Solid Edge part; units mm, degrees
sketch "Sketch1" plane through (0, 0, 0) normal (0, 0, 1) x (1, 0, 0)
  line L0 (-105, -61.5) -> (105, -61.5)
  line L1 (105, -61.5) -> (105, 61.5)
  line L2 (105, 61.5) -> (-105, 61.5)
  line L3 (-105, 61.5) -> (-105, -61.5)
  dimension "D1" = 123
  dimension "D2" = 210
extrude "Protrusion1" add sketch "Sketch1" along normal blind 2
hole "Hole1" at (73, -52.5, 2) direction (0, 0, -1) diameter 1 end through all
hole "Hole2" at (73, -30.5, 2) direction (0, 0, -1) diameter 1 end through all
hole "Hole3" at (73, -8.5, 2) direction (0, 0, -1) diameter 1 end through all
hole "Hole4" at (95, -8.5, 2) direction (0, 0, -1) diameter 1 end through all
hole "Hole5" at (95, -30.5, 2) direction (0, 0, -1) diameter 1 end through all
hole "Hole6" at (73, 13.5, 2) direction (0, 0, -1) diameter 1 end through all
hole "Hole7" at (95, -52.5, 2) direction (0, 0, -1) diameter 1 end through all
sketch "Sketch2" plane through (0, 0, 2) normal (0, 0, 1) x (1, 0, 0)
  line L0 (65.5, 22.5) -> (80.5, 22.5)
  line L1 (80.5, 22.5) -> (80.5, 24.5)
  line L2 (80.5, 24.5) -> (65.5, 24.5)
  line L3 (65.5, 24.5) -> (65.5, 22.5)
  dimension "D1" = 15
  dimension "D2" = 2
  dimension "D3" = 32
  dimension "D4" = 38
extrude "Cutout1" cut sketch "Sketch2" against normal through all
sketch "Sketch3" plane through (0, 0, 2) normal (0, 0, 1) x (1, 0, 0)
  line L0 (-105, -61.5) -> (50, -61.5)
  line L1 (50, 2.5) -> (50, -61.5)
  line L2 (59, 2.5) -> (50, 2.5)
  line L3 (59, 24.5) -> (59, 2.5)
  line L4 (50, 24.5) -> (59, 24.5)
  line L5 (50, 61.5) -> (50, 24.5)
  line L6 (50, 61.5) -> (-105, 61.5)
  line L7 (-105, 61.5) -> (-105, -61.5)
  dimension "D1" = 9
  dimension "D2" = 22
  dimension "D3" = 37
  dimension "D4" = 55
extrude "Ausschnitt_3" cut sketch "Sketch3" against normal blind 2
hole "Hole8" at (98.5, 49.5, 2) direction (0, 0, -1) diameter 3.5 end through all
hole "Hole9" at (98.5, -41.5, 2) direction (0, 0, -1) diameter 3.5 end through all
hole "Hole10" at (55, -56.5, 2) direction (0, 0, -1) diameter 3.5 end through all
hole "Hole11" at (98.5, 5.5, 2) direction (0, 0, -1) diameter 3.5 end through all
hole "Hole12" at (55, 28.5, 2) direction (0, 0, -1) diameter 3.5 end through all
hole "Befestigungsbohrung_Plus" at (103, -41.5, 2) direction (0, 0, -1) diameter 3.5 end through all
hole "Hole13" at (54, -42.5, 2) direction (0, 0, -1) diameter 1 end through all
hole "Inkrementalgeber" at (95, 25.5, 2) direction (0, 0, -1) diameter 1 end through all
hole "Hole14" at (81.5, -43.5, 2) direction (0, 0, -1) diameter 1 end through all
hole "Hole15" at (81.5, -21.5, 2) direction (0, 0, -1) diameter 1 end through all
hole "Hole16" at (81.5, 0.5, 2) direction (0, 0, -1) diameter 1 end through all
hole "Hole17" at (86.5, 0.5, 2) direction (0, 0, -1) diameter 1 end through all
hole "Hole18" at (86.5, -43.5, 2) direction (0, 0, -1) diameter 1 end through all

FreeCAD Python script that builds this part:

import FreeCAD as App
import Part
import Sketcher
Q = App.Units.Quantity

doc = App.newDocument("Part")
body = doc.addObject("PartDesign::Body", "Body")

# Sketch on XY plane
sketch1 = doc.addObject("Sketcher::SketchObject", "Sketch")
body.addObject(sketch1)
sketch1.AttachmentSupport = (doc.XY_Plane, [""])
sketch1.MapMode = "FlatFace"
sketch1.addGeometry(Part.LineSegment(App.Vector(-105, 62, 0), App.Vector(-105, -62, 0)), False)
sketch1.addGeometry(Part.LineSegment(App.Vector(-105, -62, 0), App.Vector(105, -62, 0)), False)
sketch1.addGeometry(Part.LineSegment(App.Vector(105, -62, 0), App.Vector(105, 62, 0)), False)
sketch1.addGeometry(Part.LineSegment(App.Vector(105, 62, 0), App.Vector(-105, 62, 0)), False)
sketch1.addConstraint(Sketcher.Constraint("Coincident", 0, 2, 1, 1))
sketch1.addConstraint(Sketcher.Constraint("Coincident", 1, 2, 2, 1))
sketch1.addConstraint(Sketcher.Constraint("Coincident", 2, 2, 3, 1))
sketch1.addConstraint(Sketcher.Constraint("Coincident", 3, 2, 0, 1))
sketch1.addConstraint(Sketcher.Constraint("Vertical", 0))
sketch1.addConstraint(Sketcher.Constraint("Horizontal", 1))
sketch1.addConstraint(Sketcher.Constraint("Vertical", 2))
sketch1.addConstraint(Sketcher.Constraint("Horizontal", 3))
sketch1.addConstraint(Sketcher.Constraint("Symmetric", 0, 2, 2, 2, -1, 1))
sketch1.addConstraint(Sketcher.Constraint("DistanceX", 0, 2, -1, 1, Q("105 mm")))
sketch1.addConstraint(Sketcher.Constraint("DistanceY", 0, 2, 0, 1, Q("123 mm")))
pad1 = doc.addObject("PartDesign::Pad", "Pad")
body.addObject(pad1)
pad1.Profile = sketch1
pad1.Length = 2

# Sketch on XY plane
sketch2 = doc.addObject("Sketcher::SketchObject", "Sketch001")
body.addObject(sketch2)
sketch2.AttachmentSupport = (doc.XY_Plane, [""])
sketch2.MapMode = "FlatFace"
sketch2.AttachmentOffset = App.Placement(App.Vector(0, 0, 2), App.Rotation())
sketch2.addGeometry(Part.Circle(App.Vector(73, -52.5, 0), App.Vector(0, 0, 1), 0.5), False)
sketch2.addConstraint(Sketcher.Constraint("Diameter", 0, Q("1 mm")))
sketch2.addConstraint(Sketcher.Constraint("DistanceX", -1, 1, 0, 3, Q("73 mm")))
sketch2.addConstraint(Sketcher.Constraint("DistanceY", 0, 3, -1, 1, Q("52.5 mm")))
doc.recompute()
hole = doc.addObject("PartDesign::Hole", "Hole")
body.addObject(hole)
hole.Profile = sketch2
hole.ThreadType = "None"
hole.Diameter = 1
hole.DepthType = "ThroughAll"

# Sketch on XY plane
sketch3 = doc.addObject("Sketcher::SketchObject", "Sketch002")
body.addObject(sketch3)
sketch3.AttachmentSupport = (doc.XY_Plane, [""])
sketch3.MapMode = "FlatFace"
sketch3.AttachmentOffset = App.Placement(App.Vector(0, 0, 2), App.Rotation())
sketch3.addGeometry(Part.Circle(App.Vector(73, -30.5, 0), App.Vector(0, 0, 1), 0.5), False)
sketch3.addConstraint(Sketcher.Constraint("Diameter", 0, Q("1 mm")))
sketch3.addConstraint(Sketcher.Constraint("DistanceX", -1, 1, 0, 3, Q("73 mm")))
sketch3.addConstraint(Sketcher.Constraint("DistanceY", 0, 3, -1, 1, Q("30.5 mm")))
doc.recompute()
hole2 = doc.addObject("PartDesign::Hole", "Hole001")
body.addObject(hole2)
hole2.Profile = sketch3
hole2.ThreadType = "None"
hole2.Diameter = 1
hole2.DepthType = "ThroughAll"

# Sketch on XY plane
sketch4 = doc.addObject("Sketcher::SketchObject", "Sketch003")
body.addObject(sketch4)
sketch4.AttachmentSupport = (doc.XY_Plane, [""])
sketch4.MapMode = "FlatFace"
sketch4.AttachmentOffset = App.Placement(App.Vector(0, 0, 2), App.Rotation())
sketch4.addGeometry(Part.Circle(App.Vector(73, -8.5, 0), App.Vector(0, 0, 1), 0.5), False)
sketch4.addConstraint(Sketcher.Constraint("Diameter", 0, Q("1 mm")))
sketch4.addConstraint(Sketcher.Constraint("DistanceX", -1, 1, 0, 3, Q("73 mm")))
sketch4.addConstraint(Sketcher.Constraint("DistanceY", 0, 3, -1, 1, Q("8.5 mm")))
doc.recompute()
hole3 = doc.addObject("PartDesign::Hole", "Hole002")
body.addObject(hole3)
hole3.Profile = sketch4
hole3.ThreadType = "None"
hole3.Diameter = 1
hole3.DepthType = "ThroughAll"

# Sketch on XY plane
sketch5 = doc.addObject("Sketcher::SketchObject", "Sketch004")
body.addObject(sketch5)
sketch5.AttachmentSupport = (doc.XY_Plane, [""])
sketch5.MapMode = "FlatFace"
sketch5.AttachmentOffset = App.Placement(App.Vector(0, 0, 2), App.Rotation())
sketch5.addGeometry(Part.Circle(App.Vector(95, -8.5, 0), App.Vector(0, 0, 1), 0.5), False)
sketch5.addConstraint(Sketcher.Constraint("Diameter", 0, Q("1 mm")))
sketch5.addConstraint(Sketcher.Constraint("DistanceX", -1, 1, 0, 3, Q("95 mm")))
sketch5.addConstraint(Sketcher.Constraint("DistanceY", 0, 3, -1, 1, Q("8.5 mm")))
doc.recompute()
hole4 = doc.addObject("PartDesign::Hole", "Hole003")
body.addObject(hole4)
hole4.Profile = sketch5
hole4.ThreadType = "None"
hole4.Diameter = 1
hole4.DepthType = "ThroughAll"

# Sketch on XY plane
sketch6 = doc.addObject("Sketcher::SketchObject", "Sketch005")
body.addObject(sketch6)
sketch6.AttachmentSupport = (doc.XY_Plane, [""])
sketch6.MapMode = "FlatFace"
sketch6.AttachmentOffset = App.Placement(App.Vector(0, 0, 2), App.Rotation())
sketch6.addGeometry(Part.Circle(App.Vector(95, -30.5, 0), App.Vector(0, 0, 1), 0.5), False)
sketch6.addConstraint(Sketcher.Constraint("Diameter", 0, Q("1 mm")))
sketch6.addConstraint(Sketcher.Constraint("DistanceX", -1, 1, 0, 3, Q("95 mm")))
sketch6.addConstraint(Sketcher.Constraint("DistanceY", 0, 3, -1, 1, Q("30.5 mm")))
doc.recompute()
hole5 = doc.addObject("PartDesign::Hole", "Hole004")
body.addObject(hole5)
hole5.Profile = sketch6
hole5.ThreadType = "None"
hole5.Diameter = 1
hole5.DepthType = "ThroughAll"

# Sketch on XY plane
sketch7 = doc.addObject("Sketcher::SketchObject", "Sketch006")
body.addObject(sketch7)
sketch7.AttachmentSupport = (doc.XY_Plane, [""])
sketch7.MapMode = "FlatFace"
sketch7.AttachmentOffset = App.Placement(App.Vector(0, 0, 2), App.Rotation())
sketch7.addGeometry(Part.Circle(App.Vector(73, 13.5, 0), App.Vector(0, 0, 1), 0.5), False)
sketch7.addConstraint(Sketcher.Constraint("Diameter", 0, Q("1 mm")))
sketch7.addConstraint(Sketcher.Constraint("DistanceX", -1, 1, 0, 3, Q("73 mm")))
sketch7.addConstraint(Sketcher.Constraint("DistanceY", -1, 1, 0, 3, Q("13.5 mm")))
doc.recompute()
hole6 = doc.addObject("PartDesign::Hole", "Hole005")
body.addObject(hole6)
hole6.Profile = sketch7
hole6.ThreadType = "None"
hole6.Diameter = 1
hole6.DepthType = "ThroughAll"

# Sketch on XY plane
sketch8 = doc.addObject("Sketcher::SketchObject", "Sketch007")
body.addObject(sketch8)
sketch8.AttachmentSupport = (doc.XY_Plane, [""])
sketch8.MapMode = "FlatFace"
sketch8.AttachmentOffset = App.Placement(App.Vector(0, 0, 2), App.Rotation())
sketch8.addGeometry(Part.Circle(App.Vector(95, -52.5, 0), App.Vector(0, 0, 1), 0.5), False)
sketch8.addConstraint(Sketcher.Constraint("Diameter", 0, Q("1 mm")))
sketch8.addConstraint(Sketcher.Constraint("DistanceX", -1, 1, 0, 3, Q("95 mm")))
sketch8.addConstraint(Sketcher.Constraint("DistanceY", 0, 3, -1, 1, Q("52.5 mm")))
doc.recompute()
hole7 = doc.addObject("PartDesign::Hole", "Hole006")
body.addObject(hole7)
hole7.Profile = sketch8
hole7.ThreadType = "None"
hole7.Diameter = 1
hole7.DepthType = "ThroughAll"

# Sketch on XY plane
sketch9 = doc.addObject("Sketcher::SketchObject", "Sketch008")
body.addObject(sketch9)
sketch9.AttachmentSupport = (doc.XY_Plane, [""])
sketch9.MapMode = "FlatFace"
sketch9.AttachmentOffset = App.Placement(App.Vector(0, 0, 2), App.Rotation())
sketch9.addGeometry(Part.LineSegment(App.Vector(65.5, 24.5, 0), App.Vector(65.5, 22.5, 0)), False)
sketch9.addGeometry(Part.LineSegment(App.Vector(65.5, 22.5, 0), App.Vector(80.5, 22.5, 0)), False)
sketch9.addGeometry(Part.LineSegment(App.Vector(80.5, 22.5, 0), App.Vector(80.5, 24.5, 0)), False)
sketch9.addGeometry(Part.LineSegment(App.Vector(80.5, 24.5, 0), App.Vector(65.5, 24.5, 0)), False)
sketch9.addConstraint(Sketcher.Constraint("Coincident", 0, 2, 1, 1))
sketch9.addConstraint(Sketcher.Constraint("Coincident", 1, 2, 2, 1))
sketch9.addConstraint(Sketcher.Constraint("Coincident", 2, 2, 3, 1))
sketch9.addConstraint(Sketcher.Constraint("Coincident", 3, 2, 0, 1))
sketch9.addConstraint(Sketcher.Constraint("Vertical", 0))
sketch9.addConstraint(Sketcher.Constraint("Horizontal", 1))
sketch9.addConstraint(Sketcher.Constraint("Vertical", 2))
sketch9.addConstraint(Sketcher.Constraint("Horizontal", 3))
sketch9.addConstraint(Sketcher.Constraint("DistanceX", -1, 1, 0, 2, Q("65.5 mm")))
sketch9.addConstraint(Sketcher.Constraint("DistanceX", -1, 1, 1, 2, Q("80.5 mm")))
sketch9.addConstraint(Sketcher.Constraint("DistanceY", 0, 2, 0, 1, Q("2 mm")))
sketch9.addConstraint(Sketcher.Constraint("DistanceY", -1, 1, 0, 2, Q("22.5 mm")))
pocket1 = doc.addObject("PartDesign::Pocket", "Pocket")
body.addObject(pocket1)
pocket1.Profile = sketch9
pocket1.Type = "ThroughAll"

# Sketch on XY plane
sketch10 = doc.addObject("Sketcher::SketchObject", "Sketch009")
body.addObject(sketch10)
sketch10.AttachmentSupport = (doc.XY_Plane, [""])
sketch10.MapMode = "FlatFace"
sketch10.AttachmentOffset = App.Placement(App.Vector(0, 0, 2), App.Rotation())
sketch10.addGeometry(Part.LineSegment(App.Vector(-105, 62, 0), App.Vector(-105, -62, 0)), False)
sketch10.addGeometry(Part.LineSegment(App.Vector(-105, -62, 0), App.Vector(50, -62, 0)), False)
sketch10.addGeometry(Part.LineSegment(App.Vector(50, -62, 0), App.Vector(50, 2, 0)), False)
sketch10.addGeometry(Part.LineSegment(App.Vector(50, 2, 0), App.Vector(59, 2, 0)), False)
sketch10.addGeometry(Part.LineSegment(App.Vector(59, 2, 0), App.Vector(59, 24, 0)), False)
sketch10.addGeometry(Part.LineSegment(App.Vector(59, 24, 0), App.Vector(50, 24, 0)), False)
sketch10.addGeometry(Part.LineSegment(App.Vector(50, 24, 0), App.Vector(50, 62, 0)), False)
sketch10.addGeometry(Part.LineSegment(App.Vector(50, 62, 0), App.Vector(-105, 62, 0)), False)
sketch10.addConstraint(Sketcher.Constraint("Coincident", 0, 2, 1, 1))
sketch10.addConstraint(Sketcher.Constraint("Coincident", 1, 2, 2, 1))
sketch10.addConstraint(Sketcher.Constraint("Coincident", 2, 2, 3, 1))
sketch10.addConstraint(Sketcher.Constraint("Coincident", 3, 2, 4, 1))
sketch10.addConstraint(Sketcher.Constraint("Coincident", 4, 2, 5, 1))
sketch10.addConstraint(Sketcher.Constraint("Coincident", 5, 2, 6, 1))
sketch10.addConstraint(Sketcher.Constraint("Coincident", 6, 2, 7, 1))
sketch10.addConstraint(Sketcher.Constraint("Coincident", 7, 2, 0, 1))
sketch10.addConstraint(Sketcher.Constraint("Vertical", 0))
sketch10.addConstraint(Sketcher.Constraint("Horizontal", 1))
sketch10.addConstraint(Sketcher.Constraint("Vertical", 2))
sketch10.addConstraint(Sketcher.Constraint("Horizontal", 3))
sketch10.addConstraint(Sketcher.Constraint("Vertical", 4))
sketch10.addConstraint(Sketcher.Constraint("Horizontal", 5))
sketch10.addConstraint(Sketcher.Constraint("Vertical", 6))
sketch10.addConstraint(Sketcher.Constraint("Horizontal", 7))
sketch10.addConstraint(Sketcher.Constraint("Symmetric", 1, 2, 6, 2, -1))
sketch10.addConstraint(Sketcher.Constraint("DistanceX", -1, 1, 1, 2, Q("50 mm")))
sketch10.addConstraint(Sketcher.Constraint("DistanceX", -1, 1, 3, 2, Q("59 mm")))
sketch10.addConstraint(Sketcher.Constraint("DistanceY", 2, 2, 6, 2, Q("59 mm")))
sketch10.addConstraint(Sketcher.Constraint("DistanceX", 1, 1, 1, 2, Q("155 mm")))
sketch10.addConstraint(Sketcher.Constraint("DistanceY", 0, 2, 0, 1, Q("123 mm")))
sketch10.addConstraint(Sketcher.Constraint("DistanceY", 4, 1, 4, 2, Q("22 mm")))
pocket2 = doc.addObject("PartDesign::Pocket", "Pocket001")
body.addObject(pocket2)
pocket2.Profile = sketch10
pocket2.Length = 2

# Sketch on XY plane
sketch11 = doc.addObject("Sketcher::SketchObject", "Sketch010")
body.addObject(sketch11)
sketch11.AttachmentSupport = (doc.XY_Plane, [""])
sketch11.MapMode = "FlatFace"
sketch11.AttachmentOffset = App.Placement(App.Vector(0, 0, 2), App.Rotation())
sketch11.addGeometry(Part.Circle(App.Vector(98.5, 49.5, 0), App.Vector(0, 0, 1), 1.8), False)
sketch11.addConstraint(Sketcher.Constraint("Diameter", 0, Q("3.5 mm")))
sketch11.addConstraint(Sketcher.Constraint("DistanceX", -1, 1, 0, 3, Q("98.5 mm")))
sketch11.addConstraint(Sketcher.Constraint("DistanceY", -1, 1, 0, 3, Q("49.5 mm")))
doc.recompute()
hole8 = doc.addObject("PartDesign::Hole", "Hole007")
body.addObject(hole8)
hole8.Profile = sketch11
hole8.ThreadType = "None"
hole8.Diameter = 3.5
hole8.DepthType = "ThroughAll"

# Sketch on XY plane
sketch12 = doc.addObject("Sketcher::SketchObject", "Sketch011")
body.addObject(sketch12)
sketch12.AttachmentSupport = (doc.XY_Plane, [""])
sketch12.MapMode = "FlatFace"
sketch12.AttachmentOffset = App.Placement(App.Vector(0, 0, 2), App.Rotation())
sketch12.addGeometry(Part.Circle(App.Vector(98.5, -41.5, 0), App.Vector(0, 0, 1), 1.8), False)
sketch12.addConstraint(Sketcher.Constraint("Diameter", 0, Q("3.5 mm")))
sketch12.addConstraint(Sketcher.Constraint("DistanceX", -1, 1, 0, 3, Q("98.5 mm")))
sketch12.addConstraint(Sketcher.Constraint("DistanceY", 0, 3, -1, 1, Q("41.5 mm")))
doc.recompute()
hole9 = doc.addObject("PartDesign::Hole", "Hole008")
body.addObject(hole9)
hole9.Profile = sketch12
hole9.ThreadType = "None"
hole9.Diameter = 3.5
hole9.DepthType = "ThroughAll"

# Sketch on XY plane
sketch13 = doc.addObject("Sketcher::SketchObject", "Sketch012")
body.addObject(sketch13)
sketch13.AttachmentSupport = (doc.XY_Plane, [""])
sketch13.MapMode = "FlatFace"
sketch13.AttachmentOffset = App.Placement(App.Vector(0, 0, 2), App.Rotation())
sketch13.addGeometry(Part.Circle(App.Vector(55, -56.5, 0), App.Vector(0, 0, 1), 1.8), False)
sketch13.addConstraint(Sketcher.Constraint("Diameter", 0, Q("3.5 mm")))
sketch13.addConstraint(Sketcher.Constraint("DistanceX", -1, 1, 0, 3, Q("55 mm")))
sketch13.addConstraint(Sketcher.Constraint("DistanceY", 0, 3, -1, 1, Q("56.5 mm")))
doc.recompute()
hole10 = doc.addObject("PartDesign::Hole", "Hole009")
body.addObject(hole10)
hole10.Profile = sketch13
hole10.ThreadType = "None"
hole10.Diameter = 3.5
hole10.DepthType = "ThroughAll"

# Sketch on XY plane
sketch14 = doc.addObject("Sketcher::SketchObject", "Sketch013")
body.addObject(sketch14)
sketch14.AttachmentSupport = (doc.XY_Plane, [""])
sketch14.MapMode = "FlatFace"
sketch14.AttachmentOffset = App.Placement(App.Vector(0, 0, 2), App.Rotation())
sketch14.addGeometry(Part.Circle(App.Vector(98.5, 5.5, 0), App.Vector(0, 0, 1), 1.8), False)
sketch14.addConstraint(Sketcher.Constraint("Diameter", 0, Q("3.5 mm")))
sketch14.addConstraint(Sketcher.Constraint("DistanceX", -1, 1, 0, 3, Q("98.5 mm")))
sketch14.addConstraint(Sketcher.Constraint("DistanceY", -1, 1, 0, 3, Q("5.5 mm")))
doc.recompute()
hole11 = doc.addObject("PartDesign::Hole", "Hole010")
body.addObject(hole11)
hole11.Profile = sketch14
hole11.ThreadType = "None"
hole11.Diameter = 3.5
hole11.DepthType = "ThroughAll"

# Sketch on XY plane
sketch15 = doc.addObject("Sketcher::SketchObject", "Sketch014")
body.addObject(sketch15)
sketch15.AttachmentSupport = (doc.XY_Plane, [""])
sketch15.MapMode = "FlatFace"
sketch15.AttachmentOffset = App.Placement(App.Vector(0, 0, 2), App.Rotation())
sketch15.addGeometry(Part.Circle(App.Vector(55, 28.5, 0), App.Vector(0, 0, 1), 1.8), False)
sketch15.addConstraint(Sketcher.Constraint("Diameter", 0, Q("3.5 mm")))
sketch15.addConstraint(Sketcher.Constraint("DistanceX", -1, 1, 0, 3, Q("55 mm")))
sketch15.addConstraint(Sketcher.Constraint("DistanceY", -1, 1, 0, 3, Q("28.5 mm")))
doc.recompute()
hole12 = doc.addObject("PartDesign::Hole", "Hole011")
body.addObject(hole12)
hole12.Profile = sketch15
hole12.ThreadType = "None"
hole12.Diameter = 3.5
hole12.DepthType = "ThroughAll"

# Sketch on XY plane
sketch16 = doc.addObject("Sketcher::SketchObject", "Sketch015")
body.addObject(sketch16)
sketch16.AttachmentSupport = (doc.XY_Plane, [""])
sketch16.MapMode = "FlatFace"
sketch16.AttachmentOffset = App.Placement(App.Vector(0, 0, 2), App.Rotation())
sketch16.addGeometry(Part.Circle(App.Vector(103, -41.5, 0), App.Vector(0, 0, 1), 1.8), False)
sketch16.addConstraint(Sketcher.Constraint("Diameter", 0, Q("3.5 mm")))
sketch16.addConstraint(Sketcher.Constraint("DistanceX", -1, 1, 0, 3, Q("103 mm")))
sketch16.addConstraint(Sketcher.Constraint("DistanceY", 0, 3, -1, 1, Q("41.5 mm")))
doc.recompute()
hole13 = doc.addObject("PartDesign::Hole", "Hole012")
body.addObject(hole13)
hole13.Profile = sketch16
hole13.ThreadType = "None"
hole13.Diameter = 3.5
hole13.DepthType = "ThroughAll"

# Sketch on XY plane
sketch17 = doc.addObject("Sketcher::SketchObject", "Sketch016")
body.addObject(sketch17)
sketch17.AttachmentSupport = (doc.XY_Plane, [""])
sketch17.MapMode = "FlatFace"
sketch17.AttachmentOffset = App.Placement(App.Vector(0, 0, 2), App.Rotation())
sketch17.addGeometry(Part.Circle(App.Vector(54, -42.5, 0), App.Vector(0, 0, 1), 0.5), False)
sketch17.addConstraint(Sketcher.Constraint("Diameter", 0, Q("1 mm")))
sketch17.addConstraint(Sketcher.Constraint("DistanceX", -1, 1, 0, 3, Q("54 mm")))
sketch17.addConstraint(Sketcher.Constraint("DistanceY", 0, 3, -1, 1, Q("42.5 mm")))
doc.recompute()
hole14 = doc.addObject("PartDesign::Hole", "Hole013")
body.addObject(hole14)
hole14.Profile = sketch17
hole14.ThreadType = "None"
hole14.Diameter = 1
hole14.DepthType = "ThroughAll"

# Sketch on XY plane
sketch18 = doc.addObject("Sketcher::SketchObject", "Sketch017")
body.addObject(sketch18)
sketch18.AttachmentSupport = (doc.XY_Plane, [""])
sketch18.MapMode = "FlatFace"
sketch18.AttachmentOffset = App.Placement(App.Vector(0, 0, 2), App.Rotation())
sketch18.addGeometry(Part.Circle(App.Vector(95, 25.5, 0), App.Vector(0, 0, 1), 0.5), False)
sketch18.addConstraint(Sketcher.Constraint("Diameter", 0, Q("1 mm")))
sketch18.addConstraint(Sketcher.Constraint("DistanceX", -1, 1, 0, 3, Q("95 mm")))
sketch18.addConstraint(Sketcher.Constraint("DistanceY", -1, 1, 0, 3, Q("25.5 mm")))
doc.recompute()
hole15 = doc.addObject("PartDesign::Hole", "Hole014")
body.addObject(hole15)
hole15.Profile = sketch18
hole15.ThreadType = "None"
hole15.Diameter = 1
hole15.DepthType = "ThroughAll"

# Sketch on XY plane
sketch19 = doc.addObject("Sketcher::SketchObject", "Sketch018")
body.addObject(sketch19)
sketch19.AttachmentSupport = (doc.XY_Plane, [""])
sketch19.MapMode = "FlatFace"
sketch19.AttachmentOffset = App.Placement(App.Vector(0, 0, 2), App.Rotation())
sketch19.addGeometry(Part.Circle(App.Vector(81.5, -43.5, 0), App.Vector(0, 0, 1), 0.5), False)
sketch19.addConstraint(Sketcher.Constraint("Diameter", 0, Q("1 mm")))
sketch19.addConstraint(Sketcher.Constraint("DistanceX", -1, 1, 0, 3, Q("81.5 mm")))
sketch19.addConstraint(Sketcher.Constraint("DistanceY", 0, 3, -1, 1, Q("43.5 mm")))
doc.recompute()
hole16 = doc.addObject("PartDesign::Hole", "Hole015")
body.addObject(hole16)
hole16.Profile = sketch19
hole16.ThreadType = "None"
hole16.Diameter = 1
hole16.DepthType = "ThroughAll"

# Sketch on XY plane
sketch20 = doc.addObject("Sketcher::SketchObject", "Sketch019")
body.addObject(sketch20)
sketch20.AttachmentSupport = (doc.XY_Plane, [""])
sketch20.MapMode = "FlatFace"
sketch20.AttachmentOffset = App.Placement(App.Vector(0, 0, 2), App.Rotation())
sketch20.addGeometry(Part.Circle(App.Vector(81.5, -21.5, 0), App.Vector(0, 0, 1), 0.5), False)
sketch20.addConstraint(Sketcher.Constraint("Diameter", 0, Q("1 mm")))
sketch20.addConstraint(Sketcher.Constraint("DistanceX", -1, 1, 0, 3, Q("81.5 mm")))
sketch20.addConstraint(Sketcher.Constraint("DistanceY", 0, 3, -1, 1, Q("21.5 mm")))
doc.recompute()
hole17 = doc.addObject("PartDesign::Hole", "Hole016")
body.addObject(hole17)
hole17.Profile = sketch20
hole17.ThreadType = "None"
hole17.Diameter = 1
hole17.DepthType = "ThroughAll"

# Sketch on XY plane
sketch21 = doc.addObject("Sketcher::SketchObject", "Sketch020")
body.addObject(sketch21)
sketch21.AttachmentSupport = (doc.XY_Plane, [""])
sketch21.MapMode = "FlatFace"
sketch21.AttachmentOffset = App.Placement(App.Vector(0, 0, 2), App.Rotation())
sketch21.addGeometry(Part.Circle(App.Vector(81.5, 0.5, 0), App.Vector(0, 0, 1), 0.5), False)
sketch21.addConstraint(Sketcher.Constraint("Diameter", 0, Q("1 mm")))
sketch21.addConstraint(Sketcher.Constraint("DistanceX", -1, 1, 0, 3, Q("81.5 mm")))
sketch21.addConstraint(Sketcher.Constraint("DistanceY", -1, 1, 0, 3, Q("0.5 mm")))
doc.recompute()
hole18 = doc.addObject("PartDesign::Hole", "Hole017")
body.addObject(hole18)
hole18.Profile = sketch21
hole18.ThreadType = "None"
hole18.Diameter = 1
hole18.DepthType = "ThroughAll"

# Sketch on XY plane
sketch22 = doc.addObject("Sketcher::SketchObject", "Sketch021")
body.addObject(sketch22)
sketch22.AttachmentSupport = (doc.XY_Plane, [""])
sketch22.MapMode = "FlatFace"
sketch22.AttachmentOffset = App.Placement(App.Vector(0, 0, 2), App.Rotation())
sketch22.addGeometry(Part.Circle(App.Vector(86.5, 0.5, 0), App.Vector(0, 0, 1), 0.5), False)
sketch22.addConstraint(Sketcher.Constraint("Diameter", 0, Q("1 mm")))
sketch22.addConstraint(Sketcher.Constraint("DistanceX", -1, 1, 0, 3, Q("86.5 mm")))
sketch22.addConstraint(Sketcher.Constraint("DistanceY", -1, 1, 0, 3, Q("0.5 mm")))
doc.recompute()
hole19 = doc.addObject("PartDesign::Hole", "Hole018")
body.addObject(hole19)
hole19.Profile = sketch22
hole19.ThreadType = "None"
hole19.Diameter = 1
hole19.DepthType = "ThroughAll"

# Sketch on XY plane
sketch23 = doc.addObject("Sketcher::SketchObject", "Sketch022")
body.addObject(sketch23)
sketch23.AttachmentSupport = (doc.XY_Plane, [""])
sketch23.MapMode = "FlatFace"
sketch23.AttachmentOffset = App.Placement(App.Vector(0, 0, 2), App.Rotation())
sketch23.addGeometry(Part.Circle(App.Vector(86.5, -43.5, 0), App.Vector(0, 0, 1), 0.5), False)
sketch23.addConstraint(Sketcher.Constraint("Diameter", 0, Q("1 mm")))
sketch23.addConstraint(Sketcher.Constraint("DistanceX", -1, 1, 0, 3, Q("86.5 mm")))
sketch23.addConstraint(Sketcher.Constraint("DistanceY", 0, 3, -1, 1, Q("43.5 mm")))
doc.recompute()
hole20 = doc.addObject("PartDesign::Hole", "Hole019")
body.addObject(hole20)
hole20.Profile = sketch23
hole20.ThreadType = "None"
hole20.Diameter = 1
hole20.DepthType = "ThroughAll"

doc.recompute()
